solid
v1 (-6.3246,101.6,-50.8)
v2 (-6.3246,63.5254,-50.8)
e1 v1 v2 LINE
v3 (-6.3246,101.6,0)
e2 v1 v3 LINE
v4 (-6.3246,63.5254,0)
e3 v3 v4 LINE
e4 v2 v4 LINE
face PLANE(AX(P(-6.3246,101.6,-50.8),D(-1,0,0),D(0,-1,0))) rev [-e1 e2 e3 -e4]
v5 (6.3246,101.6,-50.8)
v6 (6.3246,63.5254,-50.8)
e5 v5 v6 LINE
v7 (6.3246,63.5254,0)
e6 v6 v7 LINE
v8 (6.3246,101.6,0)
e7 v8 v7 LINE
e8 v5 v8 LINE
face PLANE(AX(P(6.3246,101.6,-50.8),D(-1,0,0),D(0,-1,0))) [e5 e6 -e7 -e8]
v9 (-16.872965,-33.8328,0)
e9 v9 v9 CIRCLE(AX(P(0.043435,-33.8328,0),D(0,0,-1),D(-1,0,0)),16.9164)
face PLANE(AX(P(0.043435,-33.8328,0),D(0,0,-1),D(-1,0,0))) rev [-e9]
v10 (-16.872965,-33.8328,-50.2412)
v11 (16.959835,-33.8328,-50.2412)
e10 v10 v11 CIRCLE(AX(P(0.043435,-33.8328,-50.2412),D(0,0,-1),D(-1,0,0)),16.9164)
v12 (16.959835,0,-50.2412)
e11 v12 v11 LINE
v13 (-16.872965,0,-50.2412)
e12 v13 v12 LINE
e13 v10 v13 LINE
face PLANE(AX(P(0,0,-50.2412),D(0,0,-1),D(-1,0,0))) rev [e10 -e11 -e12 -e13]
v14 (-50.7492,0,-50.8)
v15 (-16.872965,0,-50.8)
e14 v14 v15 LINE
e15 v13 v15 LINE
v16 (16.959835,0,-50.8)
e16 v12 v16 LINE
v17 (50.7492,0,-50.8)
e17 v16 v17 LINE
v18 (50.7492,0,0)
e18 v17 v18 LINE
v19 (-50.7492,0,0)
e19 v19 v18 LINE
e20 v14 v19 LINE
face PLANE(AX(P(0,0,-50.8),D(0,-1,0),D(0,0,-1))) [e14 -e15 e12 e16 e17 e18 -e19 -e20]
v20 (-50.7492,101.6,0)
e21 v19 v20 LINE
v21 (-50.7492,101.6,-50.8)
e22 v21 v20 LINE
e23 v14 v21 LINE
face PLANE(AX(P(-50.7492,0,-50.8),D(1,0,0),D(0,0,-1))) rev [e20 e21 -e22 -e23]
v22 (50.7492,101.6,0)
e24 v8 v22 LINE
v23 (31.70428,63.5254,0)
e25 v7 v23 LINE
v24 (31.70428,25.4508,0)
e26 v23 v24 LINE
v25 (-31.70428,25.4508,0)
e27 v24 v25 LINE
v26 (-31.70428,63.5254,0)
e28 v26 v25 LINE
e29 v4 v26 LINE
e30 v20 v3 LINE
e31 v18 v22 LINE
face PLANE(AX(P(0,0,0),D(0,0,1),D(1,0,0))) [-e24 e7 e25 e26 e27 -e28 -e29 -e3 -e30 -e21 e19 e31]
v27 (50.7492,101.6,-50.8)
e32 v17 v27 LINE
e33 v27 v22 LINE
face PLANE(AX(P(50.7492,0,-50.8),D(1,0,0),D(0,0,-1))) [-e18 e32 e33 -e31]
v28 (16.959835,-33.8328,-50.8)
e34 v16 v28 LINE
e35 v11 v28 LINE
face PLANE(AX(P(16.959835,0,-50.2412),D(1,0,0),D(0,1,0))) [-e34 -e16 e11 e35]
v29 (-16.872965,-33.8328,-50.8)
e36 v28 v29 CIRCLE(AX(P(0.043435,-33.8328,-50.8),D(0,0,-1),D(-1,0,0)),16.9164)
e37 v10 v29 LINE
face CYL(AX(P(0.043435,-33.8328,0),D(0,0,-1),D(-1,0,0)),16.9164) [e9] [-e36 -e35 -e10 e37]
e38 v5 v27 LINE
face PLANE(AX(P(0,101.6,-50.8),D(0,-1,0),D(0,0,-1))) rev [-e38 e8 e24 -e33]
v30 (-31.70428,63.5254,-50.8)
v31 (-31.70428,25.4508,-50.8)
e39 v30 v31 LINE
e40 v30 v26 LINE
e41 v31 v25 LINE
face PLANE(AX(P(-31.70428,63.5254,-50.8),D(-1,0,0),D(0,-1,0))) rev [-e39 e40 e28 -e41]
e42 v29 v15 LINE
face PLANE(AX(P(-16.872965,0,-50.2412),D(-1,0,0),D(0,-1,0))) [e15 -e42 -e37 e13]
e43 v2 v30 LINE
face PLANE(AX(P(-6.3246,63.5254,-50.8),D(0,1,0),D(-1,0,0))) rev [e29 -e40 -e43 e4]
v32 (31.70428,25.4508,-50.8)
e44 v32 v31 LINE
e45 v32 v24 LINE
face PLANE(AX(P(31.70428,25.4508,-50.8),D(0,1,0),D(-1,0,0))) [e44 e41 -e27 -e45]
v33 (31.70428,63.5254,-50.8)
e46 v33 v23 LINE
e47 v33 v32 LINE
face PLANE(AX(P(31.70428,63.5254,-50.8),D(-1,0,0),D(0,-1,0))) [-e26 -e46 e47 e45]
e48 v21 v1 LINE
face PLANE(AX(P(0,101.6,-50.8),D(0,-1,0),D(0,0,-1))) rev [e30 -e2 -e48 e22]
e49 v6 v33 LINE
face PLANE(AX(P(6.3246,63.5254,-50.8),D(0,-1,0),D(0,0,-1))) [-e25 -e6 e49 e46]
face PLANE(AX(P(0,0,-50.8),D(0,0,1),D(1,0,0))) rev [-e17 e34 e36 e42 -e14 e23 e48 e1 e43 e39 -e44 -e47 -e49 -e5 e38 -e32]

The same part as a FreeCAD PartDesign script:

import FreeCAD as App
import Part
import Sketcher
from FreeCAD import Vector
Q = App.Units.Quantity


def add_polygon(sketch, points):
    """Adds a closed chain of lines whose ends are joined by coincident constraints."""
    first, n = sketch.GeometryCount, len(points)
    for a, b in zip(points, points[1:] + points[:1]):
        sketch.addGeometry(Part.LineSegment(App.Vector(*a, 0), App.Vector(*b, 0)), False)
    for i in range(n):
        sketch.addConstraint(Sketcher.Constraint("Coincident", first + i, 2, first + (i + 1) % n, 1))

doc = App.newDocument("Part")
body = doc.addObject("PartDesign::Body", "Body")

sketch1 = body.newObject("Sketcher::SketchObject", "Sketch")
sketch1.AttachmentSupport = (doc.getObject("XY_Plane"), [""])
sketch1.MapMode = "FlatFace"
add_polygon(sketch1, [(-51, 102), (-51, 0), (51, 0), (51, 102)])
sketch1.addConstraint([
    Sketcher.Constraint("Vertical", 0),
    Sketcher.Constraint("Horizontal", 1),
    Sketcher.Constraint("Vertical", 2),
    Sketcher.Constraint("Horizontal", 3),
    Sketcher.Constraint("Symmetric", 0, 2, 1, 2, -1, 1),
    Sketcher.Constraint("DistanceY", 0, 2, 0, 1, Q("4 in")),
    Sketcher.Constraint("DistanceX", 1, 1, 1, 2, Q("3.996 in")),
])
pad1 = body.newObject("PartDesign::Pad", "Pad")
pad1.Profile = sketch1
pad1.Length = Q("2 in")
pad1.Reversed = True

sketch2 = body.newObject("Sketcher::SketchObject", "Sketch001")
sketch2.AttachmentSupport = (doc.getObject("XY_Plane"), [""])
sketch2.MapMode = "FlatFace"
add_polygon(sketch2, [(6, 102), (-6, 102), (-6, 64), (-32, 64), (-32, 25), (32, 25), (32, 64), (6, 64)])
sketch2.addConstraint([
    Sketcher.Constraint("Horizontal", 0),
    Sketcher.Constraint("Vertical", 1),
    Sketcher.Constraint("Horizontal", 2),
    Sketcher.Constraint("Vertical", 3),
    Sketcher.Constraint("Horizontal", 4),
    Sketcher.Constraint("Vertical", 5),
    Sketcher.Constraint("Horizontal", 6),
    Sketcher.Constraint("Vertical", 7),
    Sketcher.Constraint("Symmetric", 2, 2, 5, 2, -2),
    Sketcher.Constraint("Equal", 2, 6),
    Sketcher.Constraint("Equal", 1, 3),
    Sketcher.Constraint("DistanceY", -1, 1, 0, 2, Q("4 in")),
    Sketcher.Constraint("DistanceX", 0, 2, 0, 1, Q("0.498 in")),
    Sketcher.Constraint("DistanceY", 1, 2, 1, 1, Q("1.499 in")),
    Sketcher.Constraint("DistanceX", 2, 2, 2, 1, Q("0.9992 in")),
])
pocket1 = body.newObject("PartDesign::Pocket", "Pocket")
pocket1.Profile = sketch2
pocket1.Type = "ThroughAll"

sketch3 = body.newObject("Sketcher::SketchObject", "Sketch002")
sketch3.AttachmentSupport = (doc.getObject("XY_Plane"), [""])
sketch3.MapMode = "FlatFace"
sketch3.AttachmentOffset = App.Placement(Vector(0, 0, -2 * 25.4), App.Rotation())
add_polygon(sketch3, [(17, 0), (17, -34), (-17, -34), (-17, 0)])
sketch3.addConstraint([
    Sketcher.Constraint("Vertical", 0),
    Sketcher.Constraint("Horizontal", 1),
    Sketcher.Constraint("Vertical", 2),
    Sketcher.Constraint("Horizontal", 3),
    Sketcher.Constraint("PointOnObject", 2, 2, -1),
    Sketcher.Constraint("Equal", 3, 0),
    Sketcher.Constraint("DistanceX", 1, 2, 1, 1, Q("1.332 in")),
    Sketcher.Constraint("DistanceX", -1, 1, 0, 2, Q("16.959835 mm")),
])
pad2 = body.newObject("PartDesign::Pad", "Pad001")
pad2.Profile = sketch3
pad2.Length = Q("0.022 in")

sketch4 = body.newObject("Sketcher::SketchObject", "Sketch003")
sketch4.AttachmentSupport = (doc.getObject("XY_Plane"), [""])
sketch4.MapMode = "FlatFace"
sketch4.AttachmentOffset = App.Placement(Vector(0, 0, -2 * 25.4), App.Rotation())
sketch4.addGeometry(Part.Circle(Vector(0, -34, 0), Vector(0, 0, 1), 17), False)
sketch4.addConstraint([
    Sketcher.Constraint("Diameter", 0, Q("1.332 in")),
    Sketcher.Constraint("DistanceY", 0, 3, -1, 1, Q("1.332 in")),
    Sketcher.Constraint("DistanceX", -1, 1, 0, 3, Q("0.043435 mm")),
])
pad3 = body.newObject("PartDesign::Pad", "Pad002")
pad3.Profile = sketch4
pad3.Length = Q("2 in")

doc.recompute()
